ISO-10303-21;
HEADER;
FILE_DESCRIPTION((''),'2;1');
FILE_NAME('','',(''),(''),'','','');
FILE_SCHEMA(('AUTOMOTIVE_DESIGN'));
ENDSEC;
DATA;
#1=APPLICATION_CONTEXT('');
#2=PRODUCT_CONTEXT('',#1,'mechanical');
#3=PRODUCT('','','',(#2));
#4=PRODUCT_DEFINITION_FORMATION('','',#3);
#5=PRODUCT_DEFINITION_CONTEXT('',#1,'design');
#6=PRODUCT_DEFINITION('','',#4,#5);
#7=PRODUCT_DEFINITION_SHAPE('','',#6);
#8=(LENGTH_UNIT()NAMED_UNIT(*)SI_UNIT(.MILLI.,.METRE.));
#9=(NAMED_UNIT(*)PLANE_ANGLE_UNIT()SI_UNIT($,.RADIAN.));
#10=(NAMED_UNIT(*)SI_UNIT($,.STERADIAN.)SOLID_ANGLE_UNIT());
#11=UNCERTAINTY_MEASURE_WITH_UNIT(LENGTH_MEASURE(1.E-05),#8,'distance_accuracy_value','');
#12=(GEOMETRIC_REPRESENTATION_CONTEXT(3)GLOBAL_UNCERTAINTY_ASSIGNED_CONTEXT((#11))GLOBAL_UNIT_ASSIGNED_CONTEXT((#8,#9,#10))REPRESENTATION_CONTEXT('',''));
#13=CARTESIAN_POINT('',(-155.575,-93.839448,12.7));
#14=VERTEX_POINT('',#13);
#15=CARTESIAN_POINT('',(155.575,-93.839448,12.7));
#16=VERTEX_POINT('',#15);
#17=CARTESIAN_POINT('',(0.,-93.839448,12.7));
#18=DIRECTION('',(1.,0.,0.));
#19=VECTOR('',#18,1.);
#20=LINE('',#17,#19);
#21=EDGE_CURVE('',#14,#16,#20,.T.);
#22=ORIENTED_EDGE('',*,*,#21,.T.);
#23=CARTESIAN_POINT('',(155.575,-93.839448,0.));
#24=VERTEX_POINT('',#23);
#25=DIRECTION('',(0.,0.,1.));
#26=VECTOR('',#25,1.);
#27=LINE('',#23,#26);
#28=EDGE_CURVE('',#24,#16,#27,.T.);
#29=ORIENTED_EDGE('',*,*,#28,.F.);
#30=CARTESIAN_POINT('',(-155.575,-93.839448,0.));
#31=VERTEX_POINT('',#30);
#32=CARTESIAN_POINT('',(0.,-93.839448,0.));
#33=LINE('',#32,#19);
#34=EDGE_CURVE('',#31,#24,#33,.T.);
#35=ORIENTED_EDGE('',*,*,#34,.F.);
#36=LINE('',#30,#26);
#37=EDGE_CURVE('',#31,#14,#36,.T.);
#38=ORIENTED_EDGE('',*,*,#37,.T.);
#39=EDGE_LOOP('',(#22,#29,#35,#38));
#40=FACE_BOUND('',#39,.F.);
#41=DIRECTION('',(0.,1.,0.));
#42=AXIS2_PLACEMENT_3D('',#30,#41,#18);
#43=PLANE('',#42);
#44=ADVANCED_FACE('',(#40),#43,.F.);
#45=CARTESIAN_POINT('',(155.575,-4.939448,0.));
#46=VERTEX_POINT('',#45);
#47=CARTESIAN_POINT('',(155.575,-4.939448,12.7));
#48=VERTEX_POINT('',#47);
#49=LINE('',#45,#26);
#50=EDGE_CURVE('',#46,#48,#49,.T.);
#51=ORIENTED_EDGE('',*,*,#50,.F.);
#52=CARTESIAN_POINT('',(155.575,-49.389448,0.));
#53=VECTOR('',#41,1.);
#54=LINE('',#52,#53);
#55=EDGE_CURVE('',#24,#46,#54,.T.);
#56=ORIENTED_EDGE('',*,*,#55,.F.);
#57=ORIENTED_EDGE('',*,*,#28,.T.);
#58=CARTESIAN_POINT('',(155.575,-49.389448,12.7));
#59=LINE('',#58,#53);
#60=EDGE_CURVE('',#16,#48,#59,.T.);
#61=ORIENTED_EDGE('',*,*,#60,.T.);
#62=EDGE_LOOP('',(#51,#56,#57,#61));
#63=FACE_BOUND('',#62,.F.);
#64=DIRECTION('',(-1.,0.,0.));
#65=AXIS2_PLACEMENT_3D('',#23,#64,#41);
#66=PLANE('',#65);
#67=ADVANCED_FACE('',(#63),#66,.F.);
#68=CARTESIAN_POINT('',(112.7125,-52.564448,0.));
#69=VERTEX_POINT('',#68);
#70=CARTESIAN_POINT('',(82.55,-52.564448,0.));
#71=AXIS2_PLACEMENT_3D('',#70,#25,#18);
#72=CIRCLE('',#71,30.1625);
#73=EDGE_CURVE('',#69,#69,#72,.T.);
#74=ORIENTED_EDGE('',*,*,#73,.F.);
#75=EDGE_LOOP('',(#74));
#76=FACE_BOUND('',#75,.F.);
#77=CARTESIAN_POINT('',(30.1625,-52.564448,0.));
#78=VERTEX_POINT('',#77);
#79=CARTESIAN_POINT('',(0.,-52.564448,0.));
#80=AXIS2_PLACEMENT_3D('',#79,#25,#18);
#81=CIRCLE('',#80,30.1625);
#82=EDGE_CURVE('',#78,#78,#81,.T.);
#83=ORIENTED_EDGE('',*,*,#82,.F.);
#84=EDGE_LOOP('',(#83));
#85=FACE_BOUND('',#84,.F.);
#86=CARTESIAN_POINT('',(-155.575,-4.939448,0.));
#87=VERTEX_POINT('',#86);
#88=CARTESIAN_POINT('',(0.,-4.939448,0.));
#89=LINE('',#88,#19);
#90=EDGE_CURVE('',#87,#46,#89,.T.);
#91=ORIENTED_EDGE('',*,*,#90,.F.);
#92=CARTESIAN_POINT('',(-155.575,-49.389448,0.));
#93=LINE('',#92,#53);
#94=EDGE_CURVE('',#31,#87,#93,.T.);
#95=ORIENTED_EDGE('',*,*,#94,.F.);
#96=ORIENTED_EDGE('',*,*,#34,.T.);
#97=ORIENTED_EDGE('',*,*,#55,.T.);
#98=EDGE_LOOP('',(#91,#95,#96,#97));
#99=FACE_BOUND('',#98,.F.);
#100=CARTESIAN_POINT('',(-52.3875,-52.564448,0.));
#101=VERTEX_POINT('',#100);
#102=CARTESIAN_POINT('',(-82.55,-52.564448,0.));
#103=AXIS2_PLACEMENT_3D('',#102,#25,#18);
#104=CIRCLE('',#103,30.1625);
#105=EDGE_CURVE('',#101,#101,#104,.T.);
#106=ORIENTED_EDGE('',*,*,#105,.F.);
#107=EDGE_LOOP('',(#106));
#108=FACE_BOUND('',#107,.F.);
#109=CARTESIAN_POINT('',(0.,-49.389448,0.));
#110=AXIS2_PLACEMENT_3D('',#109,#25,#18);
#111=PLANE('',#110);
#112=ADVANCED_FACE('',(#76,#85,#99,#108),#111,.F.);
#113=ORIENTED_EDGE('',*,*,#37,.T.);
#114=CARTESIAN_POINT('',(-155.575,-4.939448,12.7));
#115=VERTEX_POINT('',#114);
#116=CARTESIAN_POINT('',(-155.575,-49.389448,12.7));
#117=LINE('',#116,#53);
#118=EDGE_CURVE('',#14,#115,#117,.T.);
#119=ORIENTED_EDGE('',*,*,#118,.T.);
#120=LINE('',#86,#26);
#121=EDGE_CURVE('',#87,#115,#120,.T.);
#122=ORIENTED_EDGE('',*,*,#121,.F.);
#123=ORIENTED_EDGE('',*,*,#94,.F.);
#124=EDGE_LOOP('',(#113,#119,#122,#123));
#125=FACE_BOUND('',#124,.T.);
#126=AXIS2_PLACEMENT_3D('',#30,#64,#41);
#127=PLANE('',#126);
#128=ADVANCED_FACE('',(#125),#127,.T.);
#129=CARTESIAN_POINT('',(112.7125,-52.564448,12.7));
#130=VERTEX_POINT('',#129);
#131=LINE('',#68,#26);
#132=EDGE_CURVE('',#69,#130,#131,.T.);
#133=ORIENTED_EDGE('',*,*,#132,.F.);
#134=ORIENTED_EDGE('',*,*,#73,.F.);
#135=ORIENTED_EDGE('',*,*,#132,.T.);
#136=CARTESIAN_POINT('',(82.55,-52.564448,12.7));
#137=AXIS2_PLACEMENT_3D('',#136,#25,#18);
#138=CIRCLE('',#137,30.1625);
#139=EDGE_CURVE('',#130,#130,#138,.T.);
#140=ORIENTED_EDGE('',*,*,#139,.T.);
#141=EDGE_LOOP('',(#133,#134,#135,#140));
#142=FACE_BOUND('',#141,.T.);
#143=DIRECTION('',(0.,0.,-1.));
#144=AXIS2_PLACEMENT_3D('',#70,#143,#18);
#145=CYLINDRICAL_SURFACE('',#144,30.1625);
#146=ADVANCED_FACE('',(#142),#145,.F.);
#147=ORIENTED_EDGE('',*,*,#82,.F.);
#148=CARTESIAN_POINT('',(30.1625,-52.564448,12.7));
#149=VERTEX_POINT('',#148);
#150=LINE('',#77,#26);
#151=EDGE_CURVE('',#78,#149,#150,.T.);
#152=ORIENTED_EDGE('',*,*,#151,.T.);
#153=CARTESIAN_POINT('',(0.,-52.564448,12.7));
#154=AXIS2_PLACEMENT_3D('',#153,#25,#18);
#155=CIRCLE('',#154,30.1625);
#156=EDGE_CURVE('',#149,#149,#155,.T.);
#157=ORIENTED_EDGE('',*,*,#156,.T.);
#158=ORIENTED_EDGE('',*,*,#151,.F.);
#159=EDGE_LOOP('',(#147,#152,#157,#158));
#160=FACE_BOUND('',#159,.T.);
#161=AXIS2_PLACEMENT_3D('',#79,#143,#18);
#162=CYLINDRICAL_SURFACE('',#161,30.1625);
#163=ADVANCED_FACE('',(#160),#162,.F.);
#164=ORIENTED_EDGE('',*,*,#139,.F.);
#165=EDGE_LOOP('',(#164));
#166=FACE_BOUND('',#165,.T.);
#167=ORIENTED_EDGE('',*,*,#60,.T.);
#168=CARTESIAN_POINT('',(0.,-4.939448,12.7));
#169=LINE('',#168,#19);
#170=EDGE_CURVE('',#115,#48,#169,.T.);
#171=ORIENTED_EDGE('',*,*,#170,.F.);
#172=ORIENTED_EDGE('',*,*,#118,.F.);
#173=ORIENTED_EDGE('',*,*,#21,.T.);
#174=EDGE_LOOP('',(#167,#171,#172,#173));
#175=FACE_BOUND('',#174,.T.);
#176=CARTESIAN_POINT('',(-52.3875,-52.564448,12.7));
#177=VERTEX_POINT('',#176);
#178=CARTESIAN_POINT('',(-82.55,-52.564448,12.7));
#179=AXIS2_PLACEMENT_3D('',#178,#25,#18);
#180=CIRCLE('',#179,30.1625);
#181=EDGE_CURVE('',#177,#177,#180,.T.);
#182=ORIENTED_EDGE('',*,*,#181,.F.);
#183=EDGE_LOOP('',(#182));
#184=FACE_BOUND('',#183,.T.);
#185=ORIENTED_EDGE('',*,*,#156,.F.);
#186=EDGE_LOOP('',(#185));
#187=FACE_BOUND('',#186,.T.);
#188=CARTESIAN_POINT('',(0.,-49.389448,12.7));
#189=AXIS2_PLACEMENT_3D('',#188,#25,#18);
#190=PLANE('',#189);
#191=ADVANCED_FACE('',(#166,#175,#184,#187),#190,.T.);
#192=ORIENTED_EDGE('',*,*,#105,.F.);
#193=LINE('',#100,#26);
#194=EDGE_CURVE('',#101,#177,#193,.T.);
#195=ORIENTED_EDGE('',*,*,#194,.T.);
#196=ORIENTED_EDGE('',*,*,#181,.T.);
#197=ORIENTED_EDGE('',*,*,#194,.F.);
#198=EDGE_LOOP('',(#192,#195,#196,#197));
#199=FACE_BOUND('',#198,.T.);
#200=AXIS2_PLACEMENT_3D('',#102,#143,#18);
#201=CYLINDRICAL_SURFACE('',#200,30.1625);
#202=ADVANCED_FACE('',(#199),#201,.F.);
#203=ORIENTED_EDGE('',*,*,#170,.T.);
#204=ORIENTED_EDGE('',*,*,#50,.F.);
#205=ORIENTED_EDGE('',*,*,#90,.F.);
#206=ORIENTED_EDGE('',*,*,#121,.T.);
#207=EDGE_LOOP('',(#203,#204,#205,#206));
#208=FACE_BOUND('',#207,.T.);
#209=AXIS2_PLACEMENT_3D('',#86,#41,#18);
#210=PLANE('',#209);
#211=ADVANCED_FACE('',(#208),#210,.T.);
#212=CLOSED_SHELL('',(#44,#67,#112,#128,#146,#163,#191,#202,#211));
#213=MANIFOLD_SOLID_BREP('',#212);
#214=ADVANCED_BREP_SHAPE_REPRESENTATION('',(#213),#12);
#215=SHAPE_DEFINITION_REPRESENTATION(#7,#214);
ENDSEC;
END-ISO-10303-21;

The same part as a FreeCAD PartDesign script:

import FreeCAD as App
import Part
import Sketcher
Q = App.Units.Quantity


def add_polygon(sketch, points):
    """Adds a closed chain of lines whose ends are joined by coincident constraints."""
    first, n = sketch.GeometryCount, len(points)
    for a, b in zip(points, points[1:] + points[:1]):
        sketch.addGeometry(Part.LineSegment(App.Vector(*a, 0), App.Vector(*b, 0)), False)
    for i in range(n):
        sketch.addConstraint(Sketcher.Constraint("Coincident", first + i, 2, first + (i + 1) % n, 1))

doc = App.newDocument("Part")
body = doc.addObject("PartDesign::Body", "Body")

# Sketch on XY plane
sketch1 = body.newObject("Sketcher::SketchObject", "Sketch")
sketch1.AttachmentSupport = (doc.getObject("XY_Plane"), [""])
sketch1.MapMode = "FlatFace"
add_polygon(sketch1, [(-155.575, -4.939448), (-155.575, -93.839448), (155.575, -93.839448), (155.575, -4.939448)])  # lines 0-3
sketch1.addGeometry(Part.Circle(App.Vector(-82.55, -52.564448, 0), App.Vector(0, 0, 1), 30.1625), False)  # 4
sketch1.addGeometry(Part.Circle(App.Vector(0, -52.564448, 0), App.Vector(0, 0, 1), 30.1625), False)  # 5
sketch1.addGeometry(Part.Circle(App.Vector(82.55, -52.564448, 0), App.Vector(0, 0, 1), 30.1625), False)  # 6
sketch1.addConstraint([
    Sketcher.Constraint("Vertical", 0),
    Sketcher.Constraint("Horizontal", 1),
    Sketcher.Constraint("Vertical", 2),
    Sketcher.Constraint("Horizontal", 3),
    Sketcher.Constraint("Equal", 4, 5),
    Sketcher.Constraint("Equal", 5, 6),
    Sketcher.Constraint("Symmetric", 4, 3, 6, 3, -2),
    Sketcher.Constraint("PointOnObject", 5, 3, -2),
    Sketcher.Constraint("Horizontal", 4, 3, 5, 3),
    Sketcher.Constraint("Diameter", 4, Q("2.375 in")),
    Sketcher.Constraint("DistanceY", 0, 2, 0, 1, Q("3.5 in")),
    Sketcher.Constraint("DistanceX", 1, 1, 1, 2, Q("12.25 in")),
    Sketcher.Constraint("DistanceX", 4, 3, 6, 3, Q("6.5 in")),
    Sketcher.Constraint("DistanceX", 0, 2, -1, 1, Q("6.125 in")),
    Sketcher.Constraint("DistanceY", 0, 2, 4, 3, Q("1.625 in")),
    Sketcher.Constraint("DistanceY", 0, 2, -1, 1, Q("93.839448 mm")),
])
pad1 = body.newObject("PartDesign::Pad", "Pad")
pad1.Profile = sketch1
pad1.Length = Q("0.5 in")

doc.recompute()
